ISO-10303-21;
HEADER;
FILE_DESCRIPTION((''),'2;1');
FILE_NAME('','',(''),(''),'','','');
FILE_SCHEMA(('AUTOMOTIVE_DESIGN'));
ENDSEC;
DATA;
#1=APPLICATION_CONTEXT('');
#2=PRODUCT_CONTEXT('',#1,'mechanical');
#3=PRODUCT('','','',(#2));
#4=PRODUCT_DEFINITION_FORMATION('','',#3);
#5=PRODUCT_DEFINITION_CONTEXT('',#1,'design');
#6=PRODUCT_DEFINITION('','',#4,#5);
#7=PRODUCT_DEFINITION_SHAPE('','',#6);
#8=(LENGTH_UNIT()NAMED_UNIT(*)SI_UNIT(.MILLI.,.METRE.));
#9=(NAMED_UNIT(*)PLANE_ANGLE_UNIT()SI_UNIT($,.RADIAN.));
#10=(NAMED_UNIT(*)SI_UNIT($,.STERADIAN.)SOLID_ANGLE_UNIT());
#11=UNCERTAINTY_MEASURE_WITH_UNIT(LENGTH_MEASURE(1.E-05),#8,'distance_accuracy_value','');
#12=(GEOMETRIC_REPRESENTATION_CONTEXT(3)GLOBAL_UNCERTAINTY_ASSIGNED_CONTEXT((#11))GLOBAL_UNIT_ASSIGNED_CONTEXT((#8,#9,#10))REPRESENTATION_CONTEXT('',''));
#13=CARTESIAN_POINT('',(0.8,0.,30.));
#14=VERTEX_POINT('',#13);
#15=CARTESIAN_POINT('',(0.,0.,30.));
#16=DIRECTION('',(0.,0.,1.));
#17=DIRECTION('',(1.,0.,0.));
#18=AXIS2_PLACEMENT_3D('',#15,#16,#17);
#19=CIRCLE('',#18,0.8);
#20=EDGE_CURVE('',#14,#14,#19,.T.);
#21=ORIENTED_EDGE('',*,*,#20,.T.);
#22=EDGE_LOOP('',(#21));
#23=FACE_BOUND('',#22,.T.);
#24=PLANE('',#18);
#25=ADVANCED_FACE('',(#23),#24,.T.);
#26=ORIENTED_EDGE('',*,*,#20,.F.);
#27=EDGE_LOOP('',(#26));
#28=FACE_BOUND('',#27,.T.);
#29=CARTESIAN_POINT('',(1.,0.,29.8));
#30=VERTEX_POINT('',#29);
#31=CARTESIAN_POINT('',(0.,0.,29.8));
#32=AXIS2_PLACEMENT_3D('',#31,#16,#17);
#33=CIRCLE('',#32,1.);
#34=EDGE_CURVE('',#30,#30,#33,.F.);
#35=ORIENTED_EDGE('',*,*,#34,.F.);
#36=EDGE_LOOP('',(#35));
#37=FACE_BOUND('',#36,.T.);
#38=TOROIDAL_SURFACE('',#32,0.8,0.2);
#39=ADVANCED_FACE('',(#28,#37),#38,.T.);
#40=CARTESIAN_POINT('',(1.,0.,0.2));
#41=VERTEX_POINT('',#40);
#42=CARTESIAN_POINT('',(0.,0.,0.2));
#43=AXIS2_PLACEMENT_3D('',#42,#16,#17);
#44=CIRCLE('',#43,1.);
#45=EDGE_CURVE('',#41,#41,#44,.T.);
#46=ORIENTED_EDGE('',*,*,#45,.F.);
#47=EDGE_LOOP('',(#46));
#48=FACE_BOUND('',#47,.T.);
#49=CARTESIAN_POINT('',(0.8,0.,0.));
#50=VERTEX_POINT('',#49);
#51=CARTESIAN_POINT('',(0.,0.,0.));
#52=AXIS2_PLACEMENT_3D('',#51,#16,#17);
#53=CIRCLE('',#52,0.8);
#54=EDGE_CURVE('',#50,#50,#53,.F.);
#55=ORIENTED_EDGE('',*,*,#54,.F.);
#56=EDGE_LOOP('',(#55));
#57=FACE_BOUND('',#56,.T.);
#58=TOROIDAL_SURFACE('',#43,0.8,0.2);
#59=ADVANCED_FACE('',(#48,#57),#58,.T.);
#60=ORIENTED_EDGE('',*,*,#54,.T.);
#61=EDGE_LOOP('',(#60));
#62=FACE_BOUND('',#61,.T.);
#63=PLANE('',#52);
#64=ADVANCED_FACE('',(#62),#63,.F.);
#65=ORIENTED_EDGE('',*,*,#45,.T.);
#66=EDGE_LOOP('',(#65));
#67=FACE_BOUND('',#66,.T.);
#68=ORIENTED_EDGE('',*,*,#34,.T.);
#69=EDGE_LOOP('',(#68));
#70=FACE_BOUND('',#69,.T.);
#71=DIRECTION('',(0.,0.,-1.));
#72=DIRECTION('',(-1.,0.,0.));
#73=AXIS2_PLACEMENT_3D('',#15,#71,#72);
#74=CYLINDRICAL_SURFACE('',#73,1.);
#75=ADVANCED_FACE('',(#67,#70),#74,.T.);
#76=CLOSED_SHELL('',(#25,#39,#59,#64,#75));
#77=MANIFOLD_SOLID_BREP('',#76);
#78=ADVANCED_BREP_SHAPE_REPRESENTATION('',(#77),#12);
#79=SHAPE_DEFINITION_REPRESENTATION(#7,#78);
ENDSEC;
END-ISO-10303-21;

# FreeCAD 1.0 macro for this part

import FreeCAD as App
import Part
import Sketcher

V = App.Vector
Q = App.Units.Quantity


def edges_at(feature, points):
    """Names of the edges that pass closest to the given points."""
    edges = feature.Shape.Edges
    near = lambda p: min(range(len(edges)), key=lambda i: edges[i].distToShape(Part.Vertex(*p))[0])
    return sorted({f"Edge{near(p) + 1}" for p in points})

doc = App.newDocument("Part")
params = doc.addObject("Spreadsheet::Sheet", "Params")
for row, (alias, value) in enumerate([
    ("sketch1_diameter", "2 mm"),
    ("pad1_length", "30 mm"),
    ("fillet_radius", "0.2 mm"),
], start=1):
    params.set(f"A{row}", alias)
    params.set(f"B{row}", "=" + value)
    params.setAlias(f"B{row}", alias)

body = doc.addObject("PartDesign::Body", "Body")

# Sketch on XY plane
sketch1 = body.newObject("Sketcher::SketchObject", "Sketch")
sketch1.AttachmentSupport = (doc.getObject("XY_Plane"), [""])
sketch1.MapMode = "FlatFace"
sketch1.addGeometry(Part.Circle(V(0, 0, 0), V(0, 0, 1), 1), False)
sketch1.addConstraint(Sketcher.Constraint("Coincident", 0, 3, -1, 1))
sketch1.addConstraint(Sketcher.Constraint("Diameter", 0, Q("2 mm")))
sketch1.setExpression("Constraints[1]", "Params.sketch1_diameter")
pad1 = body.newObject("PartDesign::Pad", "Pad")
pad1.Profile = sketch1
pad1.setExpression("Length", "Params.pad1_length")
doc.recompute()

fillet = body.newObject("PartDesign::Fillet", "Fillet")
fillet.Base = (pad1, edges_at(pad1, [(-1, 0, 0), (-1, 0, 30)]))
fillet.setExpression("Radius", "Params.fillet_radius")

doc.recompute()
